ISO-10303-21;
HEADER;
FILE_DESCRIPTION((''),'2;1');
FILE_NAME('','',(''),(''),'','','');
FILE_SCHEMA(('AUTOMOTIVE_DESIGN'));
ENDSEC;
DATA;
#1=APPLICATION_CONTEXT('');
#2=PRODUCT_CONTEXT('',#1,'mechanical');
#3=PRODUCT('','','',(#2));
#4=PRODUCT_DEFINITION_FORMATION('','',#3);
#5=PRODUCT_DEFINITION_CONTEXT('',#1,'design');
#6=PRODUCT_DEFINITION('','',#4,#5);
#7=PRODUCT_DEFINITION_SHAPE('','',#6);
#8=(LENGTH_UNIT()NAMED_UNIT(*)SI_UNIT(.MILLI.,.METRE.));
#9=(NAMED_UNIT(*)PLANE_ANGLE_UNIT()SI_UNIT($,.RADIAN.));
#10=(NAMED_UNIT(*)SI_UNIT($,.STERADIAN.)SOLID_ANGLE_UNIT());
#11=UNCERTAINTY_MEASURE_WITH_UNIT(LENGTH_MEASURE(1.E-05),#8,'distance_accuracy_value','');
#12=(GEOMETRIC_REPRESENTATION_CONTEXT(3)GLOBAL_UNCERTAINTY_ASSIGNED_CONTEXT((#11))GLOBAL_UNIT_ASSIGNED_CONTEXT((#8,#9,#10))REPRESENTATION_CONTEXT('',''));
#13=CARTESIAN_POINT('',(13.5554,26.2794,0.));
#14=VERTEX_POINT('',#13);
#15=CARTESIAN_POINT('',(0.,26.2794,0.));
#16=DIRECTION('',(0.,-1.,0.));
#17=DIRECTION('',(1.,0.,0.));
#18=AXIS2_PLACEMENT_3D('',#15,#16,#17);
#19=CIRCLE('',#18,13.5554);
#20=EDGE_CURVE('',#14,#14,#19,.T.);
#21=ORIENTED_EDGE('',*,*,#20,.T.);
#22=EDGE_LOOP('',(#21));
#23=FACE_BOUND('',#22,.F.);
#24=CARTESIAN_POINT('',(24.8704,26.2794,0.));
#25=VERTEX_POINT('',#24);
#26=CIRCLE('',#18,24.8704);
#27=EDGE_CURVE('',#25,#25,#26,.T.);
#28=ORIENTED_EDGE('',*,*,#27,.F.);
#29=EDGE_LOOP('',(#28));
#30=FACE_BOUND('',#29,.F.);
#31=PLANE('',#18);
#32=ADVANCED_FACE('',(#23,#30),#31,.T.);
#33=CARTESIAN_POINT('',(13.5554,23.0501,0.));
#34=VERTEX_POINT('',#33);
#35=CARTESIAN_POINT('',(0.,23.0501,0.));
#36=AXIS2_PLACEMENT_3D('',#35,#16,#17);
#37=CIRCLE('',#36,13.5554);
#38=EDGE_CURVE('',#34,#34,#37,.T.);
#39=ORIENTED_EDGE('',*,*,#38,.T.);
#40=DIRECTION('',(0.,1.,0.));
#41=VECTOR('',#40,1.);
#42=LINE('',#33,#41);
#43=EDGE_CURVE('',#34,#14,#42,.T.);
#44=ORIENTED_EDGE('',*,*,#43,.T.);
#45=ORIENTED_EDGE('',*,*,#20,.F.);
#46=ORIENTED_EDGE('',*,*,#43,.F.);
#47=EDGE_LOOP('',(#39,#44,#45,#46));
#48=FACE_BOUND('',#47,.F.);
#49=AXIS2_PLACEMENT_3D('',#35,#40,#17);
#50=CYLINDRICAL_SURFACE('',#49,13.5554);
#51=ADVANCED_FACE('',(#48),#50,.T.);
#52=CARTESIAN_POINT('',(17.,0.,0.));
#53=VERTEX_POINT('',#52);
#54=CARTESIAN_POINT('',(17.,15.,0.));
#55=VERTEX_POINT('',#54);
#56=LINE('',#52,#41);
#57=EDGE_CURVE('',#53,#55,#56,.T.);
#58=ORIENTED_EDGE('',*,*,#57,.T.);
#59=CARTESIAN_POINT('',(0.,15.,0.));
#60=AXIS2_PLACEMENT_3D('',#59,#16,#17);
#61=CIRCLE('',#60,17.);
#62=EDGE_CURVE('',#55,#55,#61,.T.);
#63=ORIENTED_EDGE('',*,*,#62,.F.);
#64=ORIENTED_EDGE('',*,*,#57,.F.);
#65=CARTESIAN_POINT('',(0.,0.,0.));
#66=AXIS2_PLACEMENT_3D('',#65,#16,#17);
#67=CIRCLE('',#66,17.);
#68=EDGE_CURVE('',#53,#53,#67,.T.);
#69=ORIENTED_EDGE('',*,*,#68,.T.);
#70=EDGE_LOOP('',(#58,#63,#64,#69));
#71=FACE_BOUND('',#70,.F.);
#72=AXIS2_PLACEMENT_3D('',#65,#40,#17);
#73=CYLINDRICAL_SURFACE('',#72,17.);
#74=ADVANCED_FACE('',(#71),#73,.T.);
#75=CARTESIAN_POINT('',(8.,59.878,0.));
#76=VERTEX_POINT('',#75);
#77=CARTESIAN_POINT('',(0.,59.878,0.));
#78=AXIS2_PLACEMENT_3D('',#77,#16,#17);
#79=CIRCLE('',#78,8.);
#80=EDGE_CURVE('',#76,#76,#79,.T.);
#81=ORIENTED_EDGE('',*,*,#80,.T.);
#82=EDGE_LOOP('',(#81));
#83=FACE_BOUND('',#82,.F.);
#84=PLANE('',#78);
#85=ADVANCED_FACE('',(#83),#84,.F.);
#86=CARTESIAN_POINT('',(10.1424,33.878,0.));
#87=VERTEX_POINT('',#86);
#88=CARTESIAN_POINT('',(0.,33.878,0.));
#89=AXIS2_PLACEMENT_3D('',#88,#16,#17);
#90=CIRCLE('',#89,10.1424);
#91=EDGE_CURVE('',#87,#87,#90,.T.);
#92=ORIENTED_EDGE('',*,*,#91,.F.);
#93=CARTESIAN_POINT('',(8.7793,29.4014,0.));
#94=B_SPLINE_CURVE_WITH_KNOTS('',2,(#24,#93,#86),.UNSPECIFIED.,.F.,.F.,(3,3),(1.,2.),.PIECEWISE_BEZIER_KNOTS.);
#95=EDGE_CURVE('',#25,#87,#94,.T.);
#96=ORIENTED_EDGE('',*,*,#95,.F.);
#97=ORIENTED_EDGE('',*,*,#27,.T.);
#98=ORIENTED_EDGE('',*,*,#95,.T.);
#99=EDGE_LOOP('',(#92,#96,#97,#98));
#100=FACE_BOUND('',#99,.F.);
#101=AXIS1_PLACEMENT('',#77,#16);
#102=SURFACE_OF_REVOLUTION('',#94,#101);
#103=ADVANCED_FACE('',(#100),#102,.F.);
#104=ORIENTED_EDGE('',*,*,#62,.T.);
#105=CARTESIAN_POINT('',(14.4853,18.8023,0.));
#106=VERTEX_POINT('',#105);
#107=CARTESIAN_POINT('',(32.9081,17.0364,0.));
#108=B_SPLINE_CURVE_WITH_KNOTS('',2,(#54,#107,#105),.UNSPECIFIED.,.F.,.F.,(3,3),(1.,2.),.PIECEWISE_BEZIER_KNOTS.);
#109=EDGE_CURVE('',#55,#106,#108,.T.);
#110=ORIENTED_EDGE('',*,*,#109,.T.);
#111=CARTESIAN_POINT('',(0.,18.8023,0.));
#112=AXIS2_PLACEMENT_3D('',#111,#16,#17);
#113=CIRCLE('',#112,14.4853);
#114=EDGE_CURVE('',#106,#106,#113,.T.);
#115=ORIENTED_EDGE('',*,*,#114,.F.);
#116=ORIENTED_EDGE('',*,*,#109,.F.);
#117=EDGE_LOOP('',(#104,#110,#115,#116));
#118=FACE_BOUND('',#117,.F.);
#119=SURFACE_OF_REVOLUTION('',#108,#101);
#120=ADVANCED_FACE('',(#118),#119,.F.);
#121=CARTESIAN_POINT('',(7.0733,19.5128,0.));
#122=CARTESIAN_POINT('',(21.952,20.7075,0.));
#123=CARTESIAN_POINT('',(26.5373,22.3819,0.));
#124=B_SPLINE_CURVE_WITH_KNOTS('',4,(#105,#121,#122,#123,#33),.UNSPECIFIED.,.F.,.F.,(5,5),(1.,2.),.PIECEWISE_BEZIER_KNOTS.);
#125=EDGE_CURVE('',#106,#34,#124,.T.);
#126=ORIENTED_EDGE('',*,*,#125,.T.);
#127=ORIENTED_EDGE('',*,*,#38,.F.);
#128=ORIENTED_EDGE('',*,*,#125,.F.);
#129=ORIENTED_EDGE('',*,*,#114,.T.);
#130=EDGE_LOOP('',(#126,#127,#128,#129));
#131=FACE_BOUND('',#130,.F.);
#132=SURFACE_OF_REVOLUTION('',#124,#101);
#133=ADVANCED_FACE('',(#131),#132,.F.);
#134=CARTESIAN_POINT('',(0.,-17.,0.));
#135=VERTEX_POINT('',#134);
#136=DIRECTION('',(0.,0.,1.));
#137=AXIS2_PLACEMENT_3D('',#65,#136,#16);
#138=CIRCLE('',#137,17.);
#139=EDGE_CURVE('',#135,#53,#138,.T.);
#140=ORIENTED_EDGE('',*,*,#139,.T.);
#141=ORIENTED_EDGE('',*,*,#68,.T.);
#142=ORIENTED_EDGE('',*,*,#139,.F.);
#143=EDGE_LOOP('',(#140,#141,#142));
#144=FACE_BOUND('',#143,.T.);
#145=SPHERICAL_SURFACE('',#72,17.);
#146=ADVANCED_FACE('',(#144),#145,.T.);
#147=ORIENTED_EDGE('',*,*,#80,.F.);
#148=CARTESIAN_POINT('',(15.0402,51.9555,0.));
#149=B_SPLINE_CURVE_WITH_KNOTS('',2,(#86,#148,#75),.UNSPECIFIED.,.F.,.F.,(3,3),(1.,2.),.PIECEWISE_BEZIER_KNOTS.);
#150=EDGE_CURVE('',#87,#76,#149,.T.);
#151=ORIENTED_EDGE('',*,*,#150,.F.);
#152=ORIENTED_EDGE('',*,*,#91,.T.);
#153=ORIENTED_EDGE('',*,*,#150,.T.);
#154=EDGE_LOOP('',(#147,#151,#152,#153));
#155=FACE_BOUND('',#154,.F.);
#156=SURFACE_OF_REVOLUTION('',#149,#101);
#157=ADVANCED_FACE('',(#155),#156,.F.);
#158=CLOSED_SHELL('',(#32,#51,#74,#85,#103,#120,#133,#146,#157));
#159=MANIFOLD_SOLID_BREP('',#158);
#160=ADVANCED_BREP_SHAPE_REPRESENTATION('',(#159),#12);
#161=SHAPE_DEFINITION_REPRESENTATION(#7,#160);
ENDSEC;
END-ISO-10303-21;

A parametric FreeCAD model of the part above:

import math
import FreeCAD as App
import Part
import Sketcher

doc = App.newDocument("Part")
body = doc.addObject("PartDesign::Body", "Body")

# Sketch on XY plane
sketch1 = body.newObject("Sketcher::SketchObject", "Sketch")
sketch1.AttachmentSupport = (doc.getObject("XY_Plane"), [""])
sketch1.MapMode = "FlatFace"
sketch1.addGeometry([
    Part.LineSegment(App.Vector(0, 59.878, 0), App.Vector(0, 0, 0)),  # 0
    Part.LineSegment(App.Vector(0, 0, 0), App.Vector(17, 0, 0)),  # 1
    Part.LineSegment(App.Vector(17, 0, 0), App.Vector(17, 15, 0)),  # 2
    Part.BSplineCurve([App.Vector(17, 15, 0), App.Vector(32.9081, 17.0364, 0), App.Vector(14.4853, 18.8023, 0)], [3, 3], [1, 2], False, 2, [1, 1, 1], False),  # 3
    Part.BSplineCurve([App.Vector(14.4853, 18.8023, 0), App.Vector(7.0733, 19.5128, 0), App.Vector(21.952, 20.7075, 0), App.Vector(26.5373, 22.3819, 0), App.Vector(13.5554, 23.0501, 0)], [5, 5], [1, 2], False, 4, [1, 1, 1, 1, 1], False),  # 4
    Part.LineSegment(App.Vector(13.5554, 23.0501, 0), App.Vector(13.5554, 26.2794, 0)),  # 5
    Part.LineSegment(App.Vector(13.5554, 26.2794, 0), App.Vector(24.8704, 26.2794, 0)),  # 6
    Part.BSplineCurve([App.Vector(24.8704, 26.2794, 0), App.Vector(8.7793, 29.4014, 0), App.Vector(10.1424, 33.878, 0)], [3, 3], [1, 2], False, 2, [1, 1, 1], False),  # 7
    Part.BSplineCurve([App.Vector(10.1424, 33.878, 0), App.Vector(15.0402, 51.9555, 0), App.Vector(8, 59.878, 0)], [3, 3], [1, 2], False, 2, [1, 1, 1], False),  # 8
    Part.LineSegment(App.Vector(8, 59.878, 0), App.Vector(0, 59.878, 0)),  # 9
], False)
sketch1.addConstraint([
    Sketcher.Constraint("Block", 3),
    Sketcher.Constraint("Block", 4),
    Sketcher.Constraint("Block", 7),
    Sketcher.Constraint("Block", 8),
    Sketcher.Constraint("Coincident", 0, 2, 1, 1),
    Sketcher.Constraint("Coincident", 1, 2, 2, 1),
    Sketcher.Constraint("Coincident", 2, 2, 3, 1),
    Sketcher.Constraint("Coincident", 4, 2, 5, 1),
    Sketcher.Constraint("Coincident", 5, 2, 6, 1),
    Sketcher.Constraint("Coincident", 6, 2, 7, 1),
    Sketcher.Constraint("Coincident", 8, 2, 9, 1),
    Sketcher.Constraint("Coincident", 9, 2, 0, 1),
    Sketcher.Constraint("Vertical", 0),
    Sketcher.Constraint("Horizontal", 1),
    Sketcher.Constraint("Vertical", 2),
    Sketcher.Constraint("Vertical", 5),
    Sketcher.Constraint("Horizontal", 6),
    Sketcher.Constraint("Horizontal", 9),
    Sketcher.Constraint("Coincident", 0, 2, -1, 1),
])
revolution = body.newObject("PartDesign::Revolution", "Revolution")
revolution.Profile = sketch1
revolution.ReferenceAxis = (sketch1, ["V_Axis"])
revolution.Angle = 360

# Sketch on XY plane
sketch2 = body.newObject("Sketcher::SketchObject", "Sketch001")
sketch2.AttachmentSupport = (doc.getObject("XY_Plane"), [""])
sketch2.MapMode = "FlatFace"
sketch2.addGeometry([
    Part.LineSegment(App.Vector(17, 0, 0), App.Vector(0, 0, 0)),
    Part.LineSegment(App.Vector(0, 0, 0), App.Vector(0, -17, 0)),
    Part.ArcOfCircle(Part.Circle(App.Vector(0, 0, 0), App.Vector(0, 0, 1), 17), math.radians(-90), math.radians(0)),
], False)
sketch2.addConstraint([
    Sketcher.Constraint("Coincident", 0, 2, 1, 1),
    Sketcher.Constraint("Coincident", 1, 2, 2, 1),
    Sketcher.Constraint("Coincident", 2, 2, 0, 1),
    Sketcher.Constraint("Horizontal", 0),
    Sketcher.Constraint("Vertical", 1),
    Sketcher.Constraint("Coincident", 2, 3, -1, 1),
    Sketcher.Constraint("Coincident", 0, 2, -1, 1),
    Sketcher.Constraint("Radius", 2, 17.0),
])
revolution2 = body.newObject("PartDesign::Revolution", "Revolution001")
revolution2.Profile = sketch2
revolution2.ReferenceAxis = (sketch2, ["V_Axis"])
revolution2.Angle = 360

doc.recompute()
